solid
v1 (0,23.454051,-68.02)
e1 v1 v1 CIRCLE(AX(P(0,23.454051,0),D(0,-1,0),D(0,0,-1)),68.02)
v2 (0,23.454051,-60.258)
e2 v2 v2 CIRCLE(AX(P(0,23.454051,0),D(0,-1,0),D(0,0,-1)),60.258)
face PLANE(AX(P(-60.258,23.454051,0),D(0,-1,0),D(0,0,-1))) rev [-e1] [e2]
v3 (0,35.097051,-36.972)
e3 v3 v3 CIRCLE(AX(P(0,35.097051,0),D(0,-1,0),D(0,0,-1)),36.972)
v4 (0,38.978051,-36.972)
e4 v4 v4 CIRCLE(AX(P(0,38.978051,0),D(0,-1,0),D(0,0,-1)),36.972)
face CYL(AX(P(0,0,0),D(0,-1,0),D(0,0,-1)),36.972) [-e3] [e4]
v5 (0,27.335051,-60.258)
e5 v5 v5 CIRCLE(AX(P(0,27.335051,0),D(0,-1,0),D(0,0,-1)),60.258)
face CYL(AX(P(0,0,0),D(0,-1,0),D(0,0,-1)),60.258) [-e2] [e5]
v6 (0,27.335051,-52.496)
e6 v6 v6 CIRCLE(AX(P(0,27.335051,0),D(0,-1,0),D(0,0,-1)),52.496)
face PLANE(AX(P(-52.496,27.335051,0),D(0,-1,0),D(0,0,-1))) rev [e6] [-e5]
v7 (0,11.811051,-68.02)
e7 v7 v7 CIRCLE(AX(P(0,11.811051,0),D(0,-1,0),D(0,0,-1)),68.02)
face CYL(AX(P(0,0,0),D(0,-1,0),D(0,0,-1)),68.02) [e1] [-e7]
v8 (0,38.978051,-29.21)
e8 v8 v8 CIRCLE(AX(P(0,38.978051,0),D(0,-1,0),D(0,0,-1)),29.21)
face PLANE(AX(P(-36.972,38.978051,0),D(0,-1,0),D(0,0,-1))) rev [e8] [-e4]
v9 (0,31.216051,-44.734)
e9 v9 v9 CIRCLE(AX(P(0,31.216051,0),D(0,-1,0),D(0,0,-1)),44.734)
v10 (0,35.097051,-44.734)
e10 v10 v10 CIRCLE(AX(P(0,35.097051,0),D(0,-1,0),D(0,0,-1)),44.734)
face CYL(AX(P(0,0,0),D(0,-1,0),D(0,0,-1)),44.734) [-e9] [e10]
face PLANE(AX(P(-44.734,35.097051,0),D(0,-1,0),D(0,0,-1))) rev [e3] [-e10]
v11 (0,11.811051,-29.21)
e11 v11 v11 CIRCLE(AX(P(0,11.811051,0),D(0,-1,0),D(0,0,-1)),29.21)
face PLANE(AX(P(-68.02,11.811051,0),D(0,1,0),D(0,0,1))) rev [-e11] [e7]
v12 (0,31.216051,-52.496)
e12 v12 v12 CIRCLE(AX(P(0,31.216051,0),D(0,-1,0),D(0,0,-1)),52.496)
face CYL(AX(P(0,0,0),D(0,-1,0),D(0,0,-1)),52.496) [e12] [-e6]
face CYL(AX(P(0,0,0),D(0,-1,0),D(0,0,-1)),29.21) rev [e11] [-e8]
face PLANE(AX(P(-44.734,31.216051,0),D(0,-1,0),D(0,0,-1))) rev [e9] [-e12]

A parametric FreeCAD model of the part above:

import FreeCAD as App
import Part
import Sketcher

doc = App.newDocument("Part")
body = doc.addObject("PartDesign::Body", "Body")

sketch1 = body.newObject("Sketcher::SketchObject", "Sketch")
sketch1.AttachmentSupport = (doc.getObject("XY_Plane"), [""])
sketch1.MapMode = "FlatFace"
sketch1.addGeometry(Part.LineSegment(App.Vector(-37, 35.1, 0), App.Vector(-44.7, 35.1, 0)), False)
sketch1.addGeometry(Part.LineSegment(App.Vector(-44.7, 35.1, 0), App.Vector(-44.7, 31.2, 0)), False)
sketch1.addGeometry(Part.LineSegment(App.Vector(-44.7, 31.2, 0), App.Vector(-52.5, 31.2, 0)), False)
sketch1.addGeometry(Part.LineSegment(App.Vector(-52.5, 31.2, 0), App.Vector(-52.5, 27.3, 0)), False)
sketch1.addGeometry(Part.LineSegment(App.Vector(-52.5, 27.3, 0), App.Vector(-60.3, 27.3, 0)), False)
sketch1.addGeometry(Part.LineSegment(App.Vector(-60.3, 27.3, 0), App.Vector(-60.3, 23.5, 0)), False)
sketch1.addGeometry(Part.LineSegment(App.Vector(-60.3, 23.5, 0), App.Vector(-68, 23.5, 0)), False)
sketch1.addGeometry(Part.LineSegment(App.Vector(-68, 23.5, 0), App.Vector(-68, 11.8, 0)), False)
sketch1.addGeometry(Part.LineSegment(App.Vector(-68, 11.8, 0), App.Vector(-29.2, 11.8, 0)), False)
sketch1.addGeometry(Part.LineSegment(App.Vector(-29.2, 11.8, 0), App.Vector(-29.2, 39, 0)), False)
sketch1.addGeometry(Part.LineSegment(App.Vector(-29.2, 39, 0), App.Vector(-37, 39, 0)), False)
sketch1.addGeometry(Part.LineSegment(App.Vector(-37, 39, 0), App.Vector(-37, 35.1, 0)), False)
sketch1.addConstraint(Sketcher.Constraint("Coincident", 0, 2, 1, 1))
sketch1.addConstraint(Sketcher.Constraint("Coincident", 1, 2, 2, 1))
sketch1.addConstraint(Sketcher.Constraint("Coincident", 2, 2, 3, 1))
sketch1.addConstraint(Sketcher.Constraint("Coincident", 3, 2, 4, 1))
sketch1.addConstraint(Sketcher.Constraint("Coincident", 4, 2, 5, 1))
sketch1.addConstraint(Sketcher.Constraint("Coincident", 5, 2, 6, 1))
sketch1.addConstraint(Sketcher.Constraint("Coincident", 6, 2, 7, 1))
sketch1.addConstraint(Sketcher.Constraint("Coincident", 7, 2, 8, 1))
sketch1.addConstraint(Sketcher.Constraint("Coincident", 8, 2, 9, 1))
sketch1.addConstraint(Sketcher.Constraint("Coincident", 9, 2, 10, 1))
sketch1.addConstraint(Sketcher.Constraint("Coincident", 10, 2, 11, 1))
sketch1.addConstraint(Sketcher.Constraint("Coincident", 11, 2, 0, 1))
sketch1.addConstraint(Sketcher.Constraint("Horizontal", 0))
sketch1.addConstraint(Sketcher.Constraint("Vertical", 1))
sketch1.addConstraint(Sketcher.Constraint("Horizontal", 2))
sketch1.addConstraint(Sketcher.Constraint("Vertical", 3))
sketch1.addConstraint(Sketcher.Constraint("Horizontal", 4))
sketch1.addConstraint(Sketcher.Constraint("Vertical", 5))
sketch1.addConstraint(Sketcher.Constraint("Horizontal", 6))
sketch1.addConstraint(Sketcher.Constraint("Vertical", 7))
sketch1.addConstraint(Sketcher.Constraint("Horizontal", 8))
sketch1.addConstraint(Sketcher.Constraint("Vertical", 9))
sketch1.addConstraint(Sketcher.Constraint("Horizontal", 10))
sketch1.addConstraint(Sketcher.Constraint("Vertical", 11))
sketch1.addConstraint(Sketcher.Constraint("Equal", 0, 2))
sketch1.addConstraint(Sketcher.Constraint("Equal", 2, 4))
sketch1.addConstraint(Sketcher.Constraint("Equal", 4, 6))
sketch1.addConstraint(Sketcher.Constraint("Equal", 6, 10))
sketch1.addConstraint(Sketcher.Constraint("Equal", 1, 3))
sketch1.addConstraint(Sketcher.Constraint("Equal", 3, 5))
sketch1.addConstraint(Sketcher.Constraint("Equal", 5, 11))
sketch1.addConstraint(Sketcher.Constraint("DistanceX", 8, 1, 8, 2, 38.81))
sketch1.addConstraint(Sketcher.Constraint("DistanceY", 1, 2, 1, 1, 3.881))
sketch1.addConstraint(Sketcher.Constraint("DistanceY", 7, 2, 7, 1, 11.643))
sketch1.addConstraint(Sketcher.Constraint("DistanceX", 6, 2, -1, 1, 68.02))
sketch1.addConstraint(Sketcher.Constraint("DistanceY", -1, 1, 0, 2, 35.097051))
revolution = body.newObject("PartDesign::Revolution", "Revolution")
revolution.Profile = sketch1
revolution.ReferenceAxis = (sketch1, ["V_Axis"])
revolution.Angle = 360

doc.recompute()
